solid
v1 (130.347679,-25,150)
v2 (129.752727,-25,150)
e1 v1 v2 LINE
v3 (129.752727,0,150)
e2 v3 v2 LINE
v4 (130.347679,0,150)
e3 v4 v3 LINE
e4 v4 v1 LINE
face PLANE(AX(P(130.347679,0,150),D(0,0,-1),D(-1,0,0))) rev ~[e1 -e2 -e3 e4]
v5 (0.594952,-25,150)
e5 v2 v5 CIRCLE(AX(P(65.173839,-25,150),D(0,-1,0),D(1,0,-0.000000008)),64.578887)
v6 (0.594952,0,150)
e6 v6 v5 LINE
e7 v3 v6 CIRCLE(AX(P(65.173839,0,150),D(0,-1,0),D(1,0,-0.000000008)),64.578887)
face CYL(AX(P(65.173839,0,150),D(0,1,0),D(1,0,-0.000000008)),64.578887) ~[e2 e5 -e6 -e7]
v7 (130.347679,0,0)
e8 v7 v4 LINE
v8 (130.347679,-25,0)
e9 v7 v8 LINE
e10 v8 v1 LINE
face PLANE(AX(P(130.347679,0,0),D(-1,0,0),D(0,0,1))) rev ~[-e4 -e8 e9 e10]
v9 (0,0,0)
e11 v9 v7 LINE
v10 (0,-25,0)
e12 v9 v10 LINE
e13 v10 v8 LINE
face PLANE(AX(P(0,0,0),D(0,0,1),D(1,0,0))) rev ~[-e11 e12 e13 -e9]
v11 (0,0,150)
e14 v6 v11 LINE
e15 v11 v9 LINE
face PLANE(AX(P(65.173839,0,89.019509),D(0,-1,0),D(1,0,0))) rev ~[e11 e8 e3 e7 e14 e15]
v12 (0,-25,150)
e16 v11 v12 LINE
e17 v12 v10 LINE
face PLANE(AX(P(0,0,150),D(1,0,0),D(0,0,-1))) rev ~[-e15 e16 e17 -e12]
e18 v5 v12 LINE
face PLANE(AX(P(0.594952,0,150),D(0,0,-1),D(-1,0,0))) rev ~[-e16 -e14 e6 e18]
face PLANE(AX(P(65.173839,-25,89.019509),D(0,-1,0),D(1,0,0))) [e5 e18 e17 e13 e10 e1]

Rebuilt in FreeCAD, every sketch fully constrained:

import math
import FreeCAD as App
import Part
import Sketcher

V = App.Vector

doc = App.newDocument("Part")
params = doc.addObject("Spreadsheet::Sheet", "Params")
for row, (alias, value) in enumerate([
    ("sketch1_height", "150 mm"),
    ("pad1_length", "25 mm"),
], start=1):
    params.set(f"A{row}", alias)
    params.set(f"B{row}", "=" + value)
    params.setAlias(f"B{row}", alias)

body = doc.addObject("PartDesign::Body", "Body")

# Sketch on XZ plane
sketch1 = body.newObject("Sketcher::SketchObject", "Sketch")
sketch1.AttachmentSupport = (doc.getObject("XZ_Plane"), [""])
sketch1.MapMode = "FlatFace"
sketch1.addGeometry(Part.LineSegment(V(0, 150, 0), V(0, 0, 0)), False)
sketch1.addGeometry(Part.LineSegment(V(0, 0, 0), V(130.347679, 0, 0)), False)
sketch1.addGeometry(Part.LineSegment(V(130.347679, 0, 0), V(130.347679, 150, 0)), False)
sketch1.addGeometry(Part.LineSegment(V(130.347679, 150, 0), V(129.752727, 150, 0)), False)
sketch1.addGeometry(Part.ArcOfCircle(Part.Circle(V(65.173839, 150, 0), V(0, 0, 1), 64.578887), math.radians(0), math.radians(180)), False)
sketch1.addGeometry(Part.LineSegment(V(0.594952, 150, 0), V(0, 150, 0)), False)
sketch1.addConstraint(Sketcher.Constraint("Coincident", 0, 2, 1, 1))
sketch1.addConstraint(Sketcher.Constraint("Coincident", 1, 2, 2, 1))
sketch1.addConstraint(Sketcher.Constraint("Coincident", 2, 2, 3, 1))
sketch1.addConstraint(Sketcher.Constraint("Coincident", 3, 2, 4, 1))
sketch1.addConstraint(Sketcher.Constraint("Coincident", 4, 2, 5, 1))
sketch1.addConstraint(Sketcher.Constraint("Coincident", 5, 2, 0, 1))
sketch1.addConstraint(Sketcher.Constraint("Vertical", 0))
sketch1.addConstraint(Sketcher.Constraint("Horizontal", 1))
sketch1.addConstraint(Sketcher.Constraint("Vertical", 2))
sketch1.addConstraint(Sketcher.Constraint("Horizontal", 3))
sketch1.addConstraint(Sketcher.Constraint("Horizontal", 5))
sketch1.addConstraint(Sketcher.Constraint("Coincident", 0, 2, -1, 1))
sketch1.addConstraint(Sketcher.Constraint("Horizontal", 4, 3, 2, 2))
sketch1.addConstraint(Sketcher.Constraint("Horizontal", 3, 2, 4, 2))
sketch1.addConstraint(Sketcher.Constraint("Equal", 3, 5))
sketch1.addConstraint(Sketcher.Constraint("DistanceY", 0, 2, 0, 1, 150.0))
sketch1.addConstraint(Sketcher.Constraint("Radius", 4, 64.578887))
sketch1.addConstraint(Sketcher.Constraint("DistanceX", 1, 1, 1, 2, 130.347679))
sketch1.setExpression("Constraints[15]", "Params.sketch1_height")
pad1 = body.newObject("PartDesign::Pad", "Pad")
pad1.Profile = sketch1
pad1.setExpression("Length", "Params.pad1_length")

doc.recompute()
